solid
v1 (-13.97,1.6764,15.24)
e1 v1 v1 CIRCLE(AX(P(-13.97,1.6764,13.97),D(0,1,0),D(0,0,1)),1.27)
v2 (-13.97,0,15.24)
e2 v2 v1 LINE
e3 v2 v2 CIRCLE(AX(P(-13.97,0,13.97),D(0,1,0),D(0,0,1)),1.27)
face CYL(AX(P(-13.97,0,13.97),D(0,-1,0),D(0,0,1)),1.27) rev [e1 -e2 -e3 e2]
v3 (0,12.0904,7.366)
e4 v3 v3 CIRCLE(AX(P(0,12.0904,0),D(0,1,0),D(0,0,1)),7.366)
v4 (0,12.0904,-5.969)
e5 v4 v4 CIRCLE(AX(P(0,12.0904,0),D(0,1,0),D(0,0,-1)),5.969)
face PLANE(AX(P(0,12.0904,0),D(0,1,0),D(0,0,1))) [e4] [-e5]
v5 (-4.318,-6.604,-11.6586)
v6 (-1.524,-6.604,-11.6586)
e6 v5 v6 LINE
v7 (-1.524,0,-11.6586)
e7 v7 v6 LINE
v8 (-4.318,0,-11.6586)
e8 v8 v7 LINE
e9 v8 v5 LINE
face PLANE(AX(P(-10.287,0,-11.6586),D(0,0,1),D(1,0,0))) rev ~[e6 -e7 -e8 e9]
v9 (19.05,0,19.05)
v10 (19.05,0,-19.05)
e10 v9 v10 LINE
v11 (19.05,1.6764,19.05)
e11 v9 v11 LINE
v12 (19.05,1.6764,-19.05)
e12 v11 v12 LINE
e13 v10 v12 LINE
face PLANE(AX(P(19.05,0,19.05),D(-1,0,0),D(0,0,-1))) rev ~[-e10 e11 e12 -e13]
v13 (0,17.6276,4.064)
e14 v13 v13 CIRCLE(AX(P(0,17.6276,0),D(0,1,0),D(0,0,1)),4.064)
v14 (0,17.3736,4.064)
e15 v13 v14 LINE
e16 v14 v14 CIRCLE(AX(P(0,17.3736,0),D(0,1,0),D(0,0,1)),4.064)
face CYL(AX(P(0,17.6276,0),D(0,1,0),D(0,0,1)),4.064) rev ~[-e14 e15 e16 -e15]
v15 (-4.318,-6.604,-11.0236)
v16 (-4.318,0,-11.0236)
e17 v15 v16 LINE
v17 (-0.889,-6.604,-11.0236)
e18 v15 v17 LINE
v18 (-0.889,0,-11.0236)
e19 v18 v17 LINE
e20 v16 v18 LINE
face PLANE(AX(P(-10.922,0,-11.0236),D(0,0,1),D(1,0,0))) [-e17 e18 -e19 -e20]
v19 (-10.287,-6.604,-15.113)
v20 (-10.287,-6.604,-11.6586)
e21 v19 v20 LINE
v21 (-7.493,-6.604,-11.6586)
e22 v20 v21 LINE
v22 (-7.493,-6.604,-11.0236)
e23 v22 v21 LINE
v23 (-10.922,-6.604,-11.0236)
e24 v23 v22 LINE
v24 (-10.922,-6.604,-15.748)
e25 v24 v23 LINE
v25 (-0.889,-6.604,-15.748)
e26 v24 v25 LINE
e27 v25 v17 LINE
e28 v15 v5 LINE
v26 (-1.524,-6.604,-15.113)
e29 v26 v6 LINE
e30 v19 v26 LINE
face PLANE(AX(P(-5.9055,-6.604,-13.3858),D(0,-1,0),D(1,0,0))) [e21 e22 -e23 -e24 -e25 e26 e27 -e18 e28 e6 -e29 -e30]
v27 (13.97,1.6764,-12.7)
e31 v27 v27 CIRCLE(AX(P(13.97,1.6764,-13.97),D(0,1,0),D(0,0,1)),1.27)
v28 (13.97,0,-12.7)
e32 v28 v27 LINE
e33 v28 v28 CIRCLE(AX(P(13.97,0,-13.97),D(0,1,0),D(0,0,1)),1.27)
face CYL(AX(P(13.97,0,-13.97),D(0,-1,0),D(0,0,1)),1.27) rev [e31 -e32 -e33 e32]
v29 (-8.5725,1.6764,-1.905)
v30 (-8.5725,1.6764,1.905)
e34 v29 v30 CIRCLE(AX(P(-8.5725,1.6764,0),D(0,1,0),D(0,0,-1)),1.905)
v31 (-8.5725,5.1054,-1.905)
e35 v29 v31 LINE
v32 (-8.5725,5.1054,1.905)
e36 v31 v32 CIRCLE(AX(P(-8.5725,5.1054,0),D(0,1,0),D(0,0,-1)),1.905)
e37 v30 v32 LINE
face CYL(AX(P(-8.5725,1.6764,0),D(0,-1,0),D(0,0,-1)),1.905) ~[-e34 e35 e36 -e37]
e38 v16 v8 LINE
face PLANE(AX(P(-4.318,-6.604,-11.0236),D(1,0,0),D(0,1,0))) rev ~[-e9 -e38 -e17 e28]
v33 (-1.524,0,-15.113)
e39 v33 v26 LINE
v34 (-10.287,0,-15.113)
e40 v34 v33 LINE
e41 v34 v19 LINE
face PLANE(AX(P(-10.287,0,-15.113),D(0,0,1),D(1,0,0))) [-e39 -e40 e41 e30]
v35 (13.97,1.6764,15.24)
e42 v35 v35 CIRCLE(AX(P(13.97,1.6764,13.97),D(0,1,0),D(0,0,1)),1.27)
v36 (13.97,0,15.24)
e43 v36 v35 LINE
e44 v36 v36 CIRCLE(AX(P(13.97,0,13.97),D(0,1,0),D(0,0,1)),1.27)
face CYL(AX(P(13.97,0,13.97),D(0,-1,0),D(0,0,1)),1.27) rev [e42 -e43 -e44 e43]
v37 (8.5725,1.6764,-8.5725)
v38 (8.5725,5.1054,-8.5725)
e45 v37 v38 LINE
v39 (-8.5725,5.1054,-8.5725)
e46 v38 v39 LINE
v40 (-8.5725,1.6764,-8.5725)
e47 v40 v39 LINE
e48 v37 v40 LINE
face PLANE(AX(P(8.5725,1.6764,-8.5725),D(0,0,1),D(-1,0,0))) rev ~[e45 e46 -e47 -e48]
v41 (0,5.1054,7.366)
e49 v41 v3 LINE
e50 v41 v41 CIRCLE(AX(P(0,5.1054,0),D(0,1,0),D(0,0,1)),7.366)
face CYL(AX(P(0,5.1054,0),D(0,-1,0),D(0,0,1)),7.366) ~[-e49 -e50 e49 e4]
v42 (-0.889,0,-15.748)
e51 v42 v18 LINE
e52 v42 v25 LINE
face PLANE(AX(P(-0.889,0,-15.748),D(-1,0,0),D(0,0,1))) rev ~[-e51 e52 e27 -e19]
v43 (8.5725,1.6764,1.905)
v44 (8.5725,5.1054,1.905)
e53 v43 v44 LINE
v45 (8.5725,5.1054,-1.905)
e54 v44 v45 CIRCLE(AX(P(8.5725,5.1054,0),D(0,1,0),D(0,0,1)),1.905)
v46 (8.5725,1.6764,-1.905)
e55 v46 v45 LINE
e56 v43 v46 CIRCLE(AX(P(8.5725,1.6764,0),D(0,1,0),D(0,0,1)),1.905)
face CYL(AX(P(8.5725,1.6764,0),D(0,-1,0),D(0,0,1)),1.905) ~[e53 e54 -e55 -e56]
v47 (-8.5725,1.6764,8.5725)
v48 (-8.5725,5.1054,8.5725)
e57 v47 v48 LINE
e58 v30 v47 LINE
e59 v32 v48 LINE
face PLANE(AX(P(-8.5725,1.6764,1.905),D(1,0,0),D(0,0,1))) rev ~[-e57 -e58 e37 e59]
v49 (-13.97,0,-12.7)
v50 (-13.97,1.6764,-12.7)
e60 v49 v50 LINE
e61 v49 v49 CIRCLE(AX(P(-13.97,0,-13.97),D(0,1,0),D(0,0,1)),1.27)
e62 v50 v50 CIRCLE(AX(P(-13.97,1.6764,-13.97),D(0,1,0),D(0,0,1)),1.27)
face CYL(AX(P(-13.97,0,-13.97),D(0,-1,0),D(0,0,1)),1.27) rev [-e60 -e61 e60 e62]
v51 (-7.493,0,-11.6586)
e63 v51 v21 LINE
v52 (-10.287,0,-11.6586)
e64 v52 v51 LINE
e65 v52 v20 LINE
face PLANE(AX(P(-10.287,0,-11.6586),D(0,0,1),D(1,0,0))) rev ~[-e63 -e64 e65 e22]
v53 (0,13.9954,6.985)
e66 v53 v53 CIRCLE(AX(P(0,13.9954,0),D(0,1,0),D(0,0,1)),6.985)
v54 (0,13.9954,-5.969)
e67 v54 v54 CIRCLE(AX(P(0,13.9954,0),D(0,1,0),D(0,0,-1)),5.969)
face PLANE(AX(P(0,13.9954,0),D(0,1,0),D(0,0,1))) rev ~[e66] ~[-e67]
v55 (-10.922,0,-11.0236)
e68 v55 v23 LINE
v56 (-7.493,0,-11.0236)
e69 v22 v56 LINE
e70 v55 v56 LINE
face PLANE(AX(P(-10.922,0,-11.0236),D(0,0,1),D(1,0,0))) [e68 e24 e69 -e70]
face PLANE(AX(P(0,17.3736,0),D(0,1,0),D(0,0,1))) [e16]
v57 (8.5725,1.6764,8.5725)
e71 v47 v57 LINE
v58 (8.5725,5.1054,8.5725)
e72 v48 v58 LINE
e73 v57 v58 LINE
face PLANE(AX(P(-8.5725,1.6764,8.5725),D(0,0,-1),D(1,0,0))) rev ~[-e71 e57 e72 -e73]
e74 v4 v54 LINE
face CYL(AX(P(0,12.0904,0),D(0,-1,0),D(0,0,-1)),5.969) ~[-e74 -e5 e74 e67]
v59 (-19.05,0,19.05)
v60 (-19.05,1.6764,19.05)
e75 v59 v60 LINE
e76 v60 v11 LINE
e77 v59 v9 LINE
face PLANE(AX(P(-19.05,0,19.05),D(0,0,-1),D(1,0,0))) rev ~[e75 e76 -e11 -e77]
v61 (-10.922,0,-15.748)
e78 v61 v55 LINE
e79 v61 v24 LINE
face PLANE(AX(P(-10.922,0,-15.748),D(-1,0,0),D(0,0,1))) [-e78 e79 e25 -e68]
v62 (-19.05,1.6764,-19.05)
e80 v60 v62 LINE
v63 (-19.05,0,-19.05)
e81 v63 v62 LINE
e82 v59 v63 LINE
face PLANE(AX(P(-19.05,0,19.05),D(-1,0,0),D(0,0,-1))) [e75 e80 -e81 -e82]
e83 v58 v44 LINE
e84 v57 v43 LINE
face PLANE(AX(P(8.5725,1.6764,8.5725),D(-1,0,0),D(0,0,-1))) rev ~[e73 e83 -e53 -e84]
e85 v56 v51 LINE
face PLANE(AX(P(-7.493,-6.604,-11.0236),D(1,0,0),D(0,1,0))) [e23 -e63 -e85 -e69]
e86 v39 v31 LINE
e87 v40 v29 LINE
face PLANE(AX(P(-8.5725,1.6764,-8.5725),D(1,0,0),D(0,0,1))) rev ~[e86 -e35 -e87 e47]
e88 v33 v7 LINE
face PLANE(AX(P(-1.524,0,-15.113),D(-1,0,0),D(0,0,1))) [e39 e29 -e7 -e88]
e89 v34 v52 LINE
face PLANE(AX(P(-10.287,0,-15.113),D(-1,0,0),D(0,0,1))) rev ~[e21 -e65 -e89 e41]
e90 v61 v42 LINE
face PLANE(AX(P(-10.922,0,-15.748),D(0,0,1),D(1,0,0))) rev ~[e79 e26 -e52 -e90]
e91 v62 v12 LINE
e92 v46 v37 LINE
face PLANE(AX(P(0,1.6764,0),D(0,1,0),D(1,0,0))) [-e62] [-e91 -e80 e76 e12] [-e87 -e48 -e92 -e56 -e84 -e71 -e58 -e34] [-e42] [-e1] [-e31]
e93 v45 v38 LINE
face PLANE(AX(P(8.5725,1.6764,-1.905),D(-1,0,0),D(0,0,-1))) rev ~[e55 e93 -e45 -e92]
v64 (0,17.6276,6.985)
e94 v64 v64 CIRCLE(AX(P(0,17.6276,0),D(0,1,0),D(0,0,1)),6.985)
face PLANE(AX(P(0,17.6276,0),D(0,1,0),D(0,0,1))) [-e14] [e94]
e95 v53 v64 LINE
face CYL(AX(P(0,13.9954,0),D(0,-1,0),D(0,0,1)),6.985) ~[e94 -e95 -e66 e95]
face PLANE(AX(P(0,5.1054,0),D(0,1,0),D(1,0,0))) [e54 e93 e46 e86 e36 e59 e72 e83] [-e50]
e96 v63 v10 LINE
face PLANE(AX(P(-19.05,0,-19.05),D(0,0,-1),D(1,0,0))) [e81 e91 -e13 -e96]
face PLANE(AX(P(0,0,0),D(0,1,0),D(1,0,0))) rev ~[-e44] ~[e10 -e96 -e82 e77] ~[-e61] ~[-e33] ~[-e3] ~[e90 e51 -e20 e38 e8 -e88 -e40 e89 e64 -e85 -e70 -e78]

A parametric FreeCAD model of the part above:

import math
import FreeCAD as App
import Part
import Sketcher

V = App.Vector
Q = App.Units.Quantity

doc = App.newDocument("Part")
body = doc.addObject("PartDesign::Body", "Body")

sketch1 = body.newObject("Sketcher::SketchObject", "Sketch")
sketch1.AttachmentSupport = (doc.getObject("XZ_Plane"), [""])
sketch1.MapMode = "FlatFace"
sketch1.addGeometry(Part.LineSegment(V(-19.05, -19.05, 0), V(-19.05, 19.05, 0)), False)
sketch1.addGeometry(Part.LineSegment(V(-19.05, 19.05, 0), V(19.05, 19.05, 0)), False)
sketch1.addGeometry(Part.LineSegment(V(19.05, 19.05, 0), V(19.05, -19.05, 0)), False)
sketch1.addGeometry(Part.LineSegment(V(19.05, -19.05, 0), V(-19.05, -19.05, 0)), False)
sketch1.addGeometry(Part.Circle(V(-13.97, 13.97, 0), V(0, 0, 1), 1.27), False)
sketch1.addGeometry(Part.Circle(V(13.97, 13.97, 0), V(0, 0, 1), 1.27), False)
sketch1.addGeometry(Part.Circle(V(-13.97, -13.97, 0), V(0, 0, 1), 1.27), False)
sketch1.addGeometry(Part.Circle(V(13.97, -13.97, 0), V(0, 0, 1), 1.27), False)
sketch1.addConstraint(Sketcher.Constraint("Coincident", 0, 2, 1, 1))
sketch1.addConstraint(Sketcher.Constraint("Coincident", 1, 2, 2, 1))
sketch1.addConstraint(Sketcher.Constraint("Coincident", 2, 2, 3, 1))
sketch1.addConstraint(Sketcher.Constraint("Coincident", 3, 2, 0, 1))
sketch1.addConstraint(Sketcher.Constraint("Vertical", 0))
sketch1.addConstraint(Sketcher.Constraint("Horizontal", 1))
sketch1.addConstraint(Sketcher.Constraint("Vertical", 2))
sketch1.addConstraint(Sketcher.Constraint("Horizontal", 3))
sketch1.addConstraint(Sketcher.Constraint("Equal", 4, 5))
sketch1.addConstraint(Sketcher.Constraint("Equal", 5, 6))
sketch1.addConstraint(Sketcher.Constraint("Equal", 6, 7))
sketch1.addConstraint(Sketcher.Constraint("Symmetric", 5, 3, 6, 3, -1, 1))
sketch1.addConstraint(Sketcher.Constraint("Symmetric", 4, 3, 7, 3, -1, 1))
sketch1.addConstraint(Sketcher.Constraint("Symmetric", 0, 2, 2, 2, -1, 1))
sketch1.addConstraint(Sketcher.Constraint("Symmetric", 4, 3, 5, 3, -2))
sketch1.addConstraint(Sketcher.Constraint("Equal", 3, 0))
sketch1.addConstraint(Sketcher.Constraint("Diameter", 4, Q("0.1 in")))
sketch1.addConstraint(Sketcher.Constraint("DistanceX", 1, 1, 1, 2, Q("1.5 in")))
sketch1.addConstraint(Sketcher.Constraint("DistanceX", 4, 3, 5, 3, Q("1.1 in")))
sketch1.addConstraint(Sketcher.Constraint("DistanceY", 6, 3, 4, 3, Q("1.1 in")))
pad1 = body.newObject("PartDesign::Pad", "Pad")
pad1.Profile = sketch1
pad1.Length = Q("0.066 in")
pad1.Reversed = True

sketch2 = body.newObject("Sketcher::SketchObject", "Sketch001")
sketch2.AttachmentSupport = (doc.getObject("XZ_Plane"), [""])
sketch2.MapMode = "FlatFace"
sketch2.AttachmentOffset = App.Placement(V(0, 0, -0.066 * 25.4), App.Rotation())
sketch2.addGeometry(Part.LineSegment(V(-8.5725, 1.905, 0), V(-8.5725, 8.5725, 0)), False)
sketch2.addGeometry(Part.LineSegment(V(-8.5725, 8.5725, 0), V(8.5725, 8.5725, 0)), False)
sketch2.addGeometry(Part.LineSegment(V(8.5725, 8.5725, 0), V(8.5725, 1.905, 0)), False)
sketch2.addGeometry(Part.ArcOfCircle(Part.Circle(V(8.5725, 0, 0), V(0, 0, 1), 1.905), math.radians(-90), math.radians(90)), False)
sketch2.addGeometry(Part.LineSegment(V(8.5725, -1.905, 0), V(8.5725, -8.5725, 0)), False)
sketch2.addGeometry(Part.LineSegment(V(8.5725, -8.5725, 0), V(-8.5725, -8.5725, 0)), False)
sketch2.addGeometry(Part.LineSegment(V(-8.5725, -8.5725, 0), V(-8.5725, -1.905, 0)), False)
sketch2.addGeometry(Part.ArcOfCircle(Part.Circle(V(-8.5725, 0, 0), V(0, 0, 1), 1.905), math.radians(90), math.radians(270)), False)
sketch2.addConstraint(Sketcher.Constraint("Coincident", 0, 2, 1, 1))
sketch2.addConstraint(Sketcher.Constraint("Coincident", 1, 2, 2, 1))
sketch2.addConstraint(Sketcher.Constraint("Coincident", 2, 2, 3, 2))
sketch2.addConstraint(Sketcher.Constraint("Coincident", 3, 1, 4, 1))
sketch2.addConstraint(Sketcher.Constraint("Coincident", 4, 2, 5, 1))
sketch2.addConstraint(Sketcher.Constraint("Coincident", 5, 2, 6, 1))
sketch2.addConstraint(Sketcher.Constraint("Coincident", 6, 2, 7, 2))
sketch2.addConstraint(Sketcher.Constraint("Coincident", 7, 1, 0, 1))
sketch2.addConstraint(Sketcher.Constraint("Vertical", 0))
sketch2.addConstraint(Sketcher.Constraint("Horizontal", 1))
sketch2.addConstraint(Sketcher.Constraint("Vertical", 2))
sketch2.addConstraint(Sketcher.Constraint("Vertical", 4))
sketch2.addConstraint(Sketcher.Constraint("Horizontal", 5))
sketch2.addConstraint(Sketcher.Constraint("Vertical", 6))
sketch2.addConstraint(Sketcher.Constraint("Equal", 3, 7))
sketch2.addConstraint(Sketcher.Constraint("Symmetric", 3, 3, 7, 3, -1, 1))
sketch2.addConstraint(Sketcher.Constraint("Symmetric", 0, 2, 4, 2, -1, 1))
sketch2.addConstraint(Sketcher.Constraint("Symmetric", 3, 1, 6, 2, -2))
sketch2.addConstraint(Sketcher.Constraint("Vertical", 7, 3, 0, 2))
sketch2.addConstraint(Sketcher.Constraint("Vertical", 3, 3, 1, 2))
sketch2.addConstraint(Sketcher.Constraint("Radius", 3, Q("0.075 in")))
sketch2.addConstraint(Sketcher.Constraint("DistanceX", 1, 1, 1, 2, Q("0.675 in")))
sketch2.addConstraint(Sketcher.Constraint("DistanceY", 0, 1, 0, 2, Q("0.2625 in")))
pad2 = body.newObject("PartDesign::Pad", "Pad001")
pad2.Profile = sketch2
pad2.Length = Q("0.135 in")
pad2.Reversed = True

sketch3 = body.newObject("Sketcher::SketchObject", "Sketch002")
sketch3.AttachmentSupport = (doc.getObject("XZ_Plane"), [""])
sketch3.MapMode = "FlatFace"
sketch3.AttachmentOffset = App.Placement(V(0, 0, -0.201 * 25.4), App.Rotation())
sketch3.addGeometry(Part.Circle(V(0, 0, 0), V(0, 0, 1), 7.366), False)
sketch3.addConstraint(Sketcher.Constraint("Coincident", 0, 3, -1, 1))
sketch3.addConstraint(Sketcher.Constraint("Diameter", 0, Q("0.58 in")))
pad3 = body.newObject("PartDesign::Pad", "Pad002")
pad3.Profile = sketch3
pad3.Length = Q("0.275 in")
pad3.Reversed = True

sketch4 = body.newObject("Sketcher::SketchObject", "Sketch003")
sketch4.AttachmentSupport = (doc.getObject("XZ_Plane"), [""])
sketch4.MapMode = "FlatFace"
sketch4.AttachmentOffset = App.Placement(V(0, 0, -0.476 * 25.4), App.Rotation())
sketch4.addGeometry(Part.Circle(V(0, 0, 0), V(0, 0, 1), 5.969), False)
sketch4.addConstraint(Sketcher.Constraint("Coincident", 0, 3, -1, 1))
sketch4.addConstraint(Sketcher.Constraint("Diameter", 0, Q("0.47 in")))
pad4 = body.newObject("PartDesign::Pad", "Pad003")
pad4.Profile = sketch4
pad4.Length = Q("0.075 in")
pad4.Reversed = True

sketch5 = body.newObject("Sketcher::SketchObject", "Sketch004")
sketch5.AttachmentSupport = (doc.getObject("XZ_Plane"), [""])
sketch5.MapMode = "FlatFace"
sketch5.AttachmentOffset = App.Placement(V(0, 0, -0.551 * 25.4), App.Rotation())
sketch5.addGeometry(Part.Circle(V(0, 0, 0), V(0, 0, 1), 6.985), False)
sketch5.addConstraint(Sketcher.Constraint("Coincident", 0, 3, -1, 1))
sketch5.addConstraint(Sketcher.Constraint("Diameter", 0, Q("0.55 in")))
pad5 = body.newObject("PartDesign::Pad", "Pad004")
pad5.Profile = sketch5
pad5.Length = Q("0.143 in")
pad5.Reversed = True

sketch6 = body.newObject("Sketcher::SketchObject", "Sketch005")
sketch6.AttachmentSupport = (doc.getObject("XZ_Plane"), [""])
sketch6.MapMode = "FlatFace"
sketch6.AttachmentOffset = App.Placement(V(0, 0, -0.694 * 25.4), App.Rotation())
sketch6.addGeometry(Part.Circle(V(0, 0, 0), V(0, 0, 1), 4.064), False)
sketch6.addConstraint(Sketcher.Constraint("Coincident", 0, 3, -1, 1))
sketch6.addConstraint(Sketcher.Constraint("Diameter", 0, Q("0.32 in")))
pocket1 = body.newObject("PartDesign::Pocket", "Pocket")
pocket1.Profile = sketch6
pocket1.Length = Q("0.01 in")
pocket1.Reversed = True

sketch7 = body.newObject("Sketcher::SketchObject", "Sketch006")
sketch7.AttachmentSupport = (doc.getObject("XZ_Plane"), [""])
sketch7.MapMode = "FlatFace"
sketch7.addGeometry(Part.LineSegment(V(-10.922, -11.0236, 0), V(-10.922, -15.748, 0)), False)
sketch7.addGeometry(Part.LineSegment(V(-10.922, -15.748, 0), V(-0.889, -15.748, 0)), False)
sketch7.addGeometry(Part.LineSegment(V(-0.889, -15.748, 0), V(-0.889, -11.0236, 0)), False)
sketch7.addGeometry(Part.LineSegment(V(-0.889, -11.0236, 0), V(-10.922, -11.0236, 0)), False)
sketch7.addGeometry(Part.LineSegment(V(-1.524, -15.113, 0), V(-10.287, -15.113, 0)), False)
sketch7.addGeometry(Part.LineSegment(V(-10.287, -15.113, 0), V(-10.287, -11.6586, 0)), False)
sketch7.addGeometry(Part.LineSegment(V(-10.287, -11.6586, 0), V(-1.524, -11.6586, 0)), False)
sketch7.addGeometry(Part.LineSegment(V(-1.524, -11.6586, 0), V(-1.524, -15.113, 0)), False)
sketch7.addConstraint(Sketcher.Constraint("Coincident", 0, 2, 1, 1))
sketch7.addConstraint(Sketcher.Constraint("Coincident", 1, 2, 2, 1))
sketch7.addConstraint(Sketcher.Constraint("Coincident", 2, 2, 3, 1))
sketch7.addConstraint(Sketcher.Constraint("Coincident", 3, 2, 0, 1))
sketch7.addConstraint(Sketcher.Constraint("Coincident", 4, 2, 5, 1))
sketch7.addConstraint(Sketcher.Constraint("Coincident", 5, 2, 6, 1))
sketch7.addConstraint(Sketcher.Constraint("Coincident", 6, 2, 7, 1))
sketch7.addConstraint(Sketcher.Constraint("Coincident", 7, 2, 4, 1))
sketch7.addConstraint(Sketcher.Constraint("Vertical", 0))
sketch7.addConstraint(Sketcher.Constraint("Horizontal", 1))
sketch7.addConstraint(Sketcher.Constraint("Vertical", 2))
sketch7.addConstraint(Sketcher.Constraint("Horizontal", 3))
sketch7.addConstraint(Sketcher.Constraint("Horizontal", 4))
sketch7.addConstraint(Sketcher.Constraint("Vertical", 5))
sketch7.addConstraint(Sketcher.Constraint("Horizontal", 6))
sketch7.addConstraint(Sketcher.Constraint("Vertical", 7))
sketch7.addConstraint(Sketcher.Constraint("DistanceX", 1, 1, 1, 2, Q("0.395 in")))
sketch7.addConstraint(Sketcher.Constraint("DistanceX", 4, 2, 4, 1, Q("0.345 in")))
sketch7.addConstraint(Sketcher.Constraint("DistanceY", 0, 2, 0, 1, Q("0.186 in")))
sketch7.addConstraint(Sketcher.Constraint("DistanceY", 5, 1, 5, 2, Q("0.136 in")))
sketch7.addConstraint(Sketcher.Constraint("DistanceX", 0, 2, -1, 1, Q("0.43 in")))
sketch7.addConstraint(Sketcher.Constraint("DistanceY", 0, 2, -1, 1, Q("0.62 in")))
sketch7.addConstraint(Sketcher.Constraint("DistanceX", 6, 2, -1, 1, Q("0.06 in")))
sketch7.addConstraint(Sketcher.Constraint("DistanceY", 4, 2, -1, 1, Q("0.595 in")))
pad6 = body.newObject("PartDesign::Pad", "Pad005")
pad6.Profile = sketch7
pad6.Length = Q("0.26 in")

sketch8 = body.newObject("Sketcher::SketchObject", "Sketch007")
sketch8.AttachmentSupport = (doc.getObject("XY_Plane"), [""])
sketch8.MapMode = "FlatFace"
sketch8.AttachmentOffset = App.Placement(V(0, 0, -0.434 * 25.4), App.Rotation())
sketch8.addGeometry(Part.LineSegment(V(-7.493, 0, 0), V(-7.493, -6.604, 0)), False)
sketch8.addGeometry(Part.LineSegment(V(-7.493, -6.604, 0), V(-4.318, -6.604, 0)), False)
sketch8.addGeometry(Part.LineSegment(V(-4.318, -6.604, 0), V(-4.318, 0, 0)), False)
sketch8.addGeometry(Part.LineSegment(V(-4.318, 0, 0), V(-7.493, 0, 0)), False)
sketch8.addConstraint(Sketcher.Constraint("Coincident", 0, 2, 1, 1))
sketch8.addConstraint(Sketcher.Constraint("Coincident", 1, 2, 2, 1))
sketch8.addConstraint(Sketcher.Constraint("Coincident", 2, 2, 3, 1))
sketch8.addConstraint(Sketcher.Constraint("Coincident", 3, 2, 0, 1))
sketch8.addConstraint(Sketcher.Constraint("Vertical", 0))
sketch8.addConstraint(Sketcher.Constraint("Horizontal", 1))
sketch8.addConstraint(Sketcher.Constraint("Vertical", 2))
sketch8.addConstraint(Sketcher.Constraint("Horizontal", 3))
sketch8.addConstraint(Sketcher.Constraint("PointOnObject", 2, 2, -1))
sketch8.addConstraint(Sketcher.Constraint("DistanceY", 0, 2, 0, 1, Q("0.26 in")))
sketch8.addConstraint(Sketcher.Constraint("DistanceX", 1, 1, 1, 2, Q("0.125 in")))
sketch8.addConstraint(Sketcher.Constraint("DistanceX", 1, 2, -1, 1, Q("0.17 in")))
pocket2 = body.newObject("PartDesign::Pocket", "Pocket001")
pocket2.Profile = sketch8
pocket2.Type = "UpToFirst"

doc.recompute()
